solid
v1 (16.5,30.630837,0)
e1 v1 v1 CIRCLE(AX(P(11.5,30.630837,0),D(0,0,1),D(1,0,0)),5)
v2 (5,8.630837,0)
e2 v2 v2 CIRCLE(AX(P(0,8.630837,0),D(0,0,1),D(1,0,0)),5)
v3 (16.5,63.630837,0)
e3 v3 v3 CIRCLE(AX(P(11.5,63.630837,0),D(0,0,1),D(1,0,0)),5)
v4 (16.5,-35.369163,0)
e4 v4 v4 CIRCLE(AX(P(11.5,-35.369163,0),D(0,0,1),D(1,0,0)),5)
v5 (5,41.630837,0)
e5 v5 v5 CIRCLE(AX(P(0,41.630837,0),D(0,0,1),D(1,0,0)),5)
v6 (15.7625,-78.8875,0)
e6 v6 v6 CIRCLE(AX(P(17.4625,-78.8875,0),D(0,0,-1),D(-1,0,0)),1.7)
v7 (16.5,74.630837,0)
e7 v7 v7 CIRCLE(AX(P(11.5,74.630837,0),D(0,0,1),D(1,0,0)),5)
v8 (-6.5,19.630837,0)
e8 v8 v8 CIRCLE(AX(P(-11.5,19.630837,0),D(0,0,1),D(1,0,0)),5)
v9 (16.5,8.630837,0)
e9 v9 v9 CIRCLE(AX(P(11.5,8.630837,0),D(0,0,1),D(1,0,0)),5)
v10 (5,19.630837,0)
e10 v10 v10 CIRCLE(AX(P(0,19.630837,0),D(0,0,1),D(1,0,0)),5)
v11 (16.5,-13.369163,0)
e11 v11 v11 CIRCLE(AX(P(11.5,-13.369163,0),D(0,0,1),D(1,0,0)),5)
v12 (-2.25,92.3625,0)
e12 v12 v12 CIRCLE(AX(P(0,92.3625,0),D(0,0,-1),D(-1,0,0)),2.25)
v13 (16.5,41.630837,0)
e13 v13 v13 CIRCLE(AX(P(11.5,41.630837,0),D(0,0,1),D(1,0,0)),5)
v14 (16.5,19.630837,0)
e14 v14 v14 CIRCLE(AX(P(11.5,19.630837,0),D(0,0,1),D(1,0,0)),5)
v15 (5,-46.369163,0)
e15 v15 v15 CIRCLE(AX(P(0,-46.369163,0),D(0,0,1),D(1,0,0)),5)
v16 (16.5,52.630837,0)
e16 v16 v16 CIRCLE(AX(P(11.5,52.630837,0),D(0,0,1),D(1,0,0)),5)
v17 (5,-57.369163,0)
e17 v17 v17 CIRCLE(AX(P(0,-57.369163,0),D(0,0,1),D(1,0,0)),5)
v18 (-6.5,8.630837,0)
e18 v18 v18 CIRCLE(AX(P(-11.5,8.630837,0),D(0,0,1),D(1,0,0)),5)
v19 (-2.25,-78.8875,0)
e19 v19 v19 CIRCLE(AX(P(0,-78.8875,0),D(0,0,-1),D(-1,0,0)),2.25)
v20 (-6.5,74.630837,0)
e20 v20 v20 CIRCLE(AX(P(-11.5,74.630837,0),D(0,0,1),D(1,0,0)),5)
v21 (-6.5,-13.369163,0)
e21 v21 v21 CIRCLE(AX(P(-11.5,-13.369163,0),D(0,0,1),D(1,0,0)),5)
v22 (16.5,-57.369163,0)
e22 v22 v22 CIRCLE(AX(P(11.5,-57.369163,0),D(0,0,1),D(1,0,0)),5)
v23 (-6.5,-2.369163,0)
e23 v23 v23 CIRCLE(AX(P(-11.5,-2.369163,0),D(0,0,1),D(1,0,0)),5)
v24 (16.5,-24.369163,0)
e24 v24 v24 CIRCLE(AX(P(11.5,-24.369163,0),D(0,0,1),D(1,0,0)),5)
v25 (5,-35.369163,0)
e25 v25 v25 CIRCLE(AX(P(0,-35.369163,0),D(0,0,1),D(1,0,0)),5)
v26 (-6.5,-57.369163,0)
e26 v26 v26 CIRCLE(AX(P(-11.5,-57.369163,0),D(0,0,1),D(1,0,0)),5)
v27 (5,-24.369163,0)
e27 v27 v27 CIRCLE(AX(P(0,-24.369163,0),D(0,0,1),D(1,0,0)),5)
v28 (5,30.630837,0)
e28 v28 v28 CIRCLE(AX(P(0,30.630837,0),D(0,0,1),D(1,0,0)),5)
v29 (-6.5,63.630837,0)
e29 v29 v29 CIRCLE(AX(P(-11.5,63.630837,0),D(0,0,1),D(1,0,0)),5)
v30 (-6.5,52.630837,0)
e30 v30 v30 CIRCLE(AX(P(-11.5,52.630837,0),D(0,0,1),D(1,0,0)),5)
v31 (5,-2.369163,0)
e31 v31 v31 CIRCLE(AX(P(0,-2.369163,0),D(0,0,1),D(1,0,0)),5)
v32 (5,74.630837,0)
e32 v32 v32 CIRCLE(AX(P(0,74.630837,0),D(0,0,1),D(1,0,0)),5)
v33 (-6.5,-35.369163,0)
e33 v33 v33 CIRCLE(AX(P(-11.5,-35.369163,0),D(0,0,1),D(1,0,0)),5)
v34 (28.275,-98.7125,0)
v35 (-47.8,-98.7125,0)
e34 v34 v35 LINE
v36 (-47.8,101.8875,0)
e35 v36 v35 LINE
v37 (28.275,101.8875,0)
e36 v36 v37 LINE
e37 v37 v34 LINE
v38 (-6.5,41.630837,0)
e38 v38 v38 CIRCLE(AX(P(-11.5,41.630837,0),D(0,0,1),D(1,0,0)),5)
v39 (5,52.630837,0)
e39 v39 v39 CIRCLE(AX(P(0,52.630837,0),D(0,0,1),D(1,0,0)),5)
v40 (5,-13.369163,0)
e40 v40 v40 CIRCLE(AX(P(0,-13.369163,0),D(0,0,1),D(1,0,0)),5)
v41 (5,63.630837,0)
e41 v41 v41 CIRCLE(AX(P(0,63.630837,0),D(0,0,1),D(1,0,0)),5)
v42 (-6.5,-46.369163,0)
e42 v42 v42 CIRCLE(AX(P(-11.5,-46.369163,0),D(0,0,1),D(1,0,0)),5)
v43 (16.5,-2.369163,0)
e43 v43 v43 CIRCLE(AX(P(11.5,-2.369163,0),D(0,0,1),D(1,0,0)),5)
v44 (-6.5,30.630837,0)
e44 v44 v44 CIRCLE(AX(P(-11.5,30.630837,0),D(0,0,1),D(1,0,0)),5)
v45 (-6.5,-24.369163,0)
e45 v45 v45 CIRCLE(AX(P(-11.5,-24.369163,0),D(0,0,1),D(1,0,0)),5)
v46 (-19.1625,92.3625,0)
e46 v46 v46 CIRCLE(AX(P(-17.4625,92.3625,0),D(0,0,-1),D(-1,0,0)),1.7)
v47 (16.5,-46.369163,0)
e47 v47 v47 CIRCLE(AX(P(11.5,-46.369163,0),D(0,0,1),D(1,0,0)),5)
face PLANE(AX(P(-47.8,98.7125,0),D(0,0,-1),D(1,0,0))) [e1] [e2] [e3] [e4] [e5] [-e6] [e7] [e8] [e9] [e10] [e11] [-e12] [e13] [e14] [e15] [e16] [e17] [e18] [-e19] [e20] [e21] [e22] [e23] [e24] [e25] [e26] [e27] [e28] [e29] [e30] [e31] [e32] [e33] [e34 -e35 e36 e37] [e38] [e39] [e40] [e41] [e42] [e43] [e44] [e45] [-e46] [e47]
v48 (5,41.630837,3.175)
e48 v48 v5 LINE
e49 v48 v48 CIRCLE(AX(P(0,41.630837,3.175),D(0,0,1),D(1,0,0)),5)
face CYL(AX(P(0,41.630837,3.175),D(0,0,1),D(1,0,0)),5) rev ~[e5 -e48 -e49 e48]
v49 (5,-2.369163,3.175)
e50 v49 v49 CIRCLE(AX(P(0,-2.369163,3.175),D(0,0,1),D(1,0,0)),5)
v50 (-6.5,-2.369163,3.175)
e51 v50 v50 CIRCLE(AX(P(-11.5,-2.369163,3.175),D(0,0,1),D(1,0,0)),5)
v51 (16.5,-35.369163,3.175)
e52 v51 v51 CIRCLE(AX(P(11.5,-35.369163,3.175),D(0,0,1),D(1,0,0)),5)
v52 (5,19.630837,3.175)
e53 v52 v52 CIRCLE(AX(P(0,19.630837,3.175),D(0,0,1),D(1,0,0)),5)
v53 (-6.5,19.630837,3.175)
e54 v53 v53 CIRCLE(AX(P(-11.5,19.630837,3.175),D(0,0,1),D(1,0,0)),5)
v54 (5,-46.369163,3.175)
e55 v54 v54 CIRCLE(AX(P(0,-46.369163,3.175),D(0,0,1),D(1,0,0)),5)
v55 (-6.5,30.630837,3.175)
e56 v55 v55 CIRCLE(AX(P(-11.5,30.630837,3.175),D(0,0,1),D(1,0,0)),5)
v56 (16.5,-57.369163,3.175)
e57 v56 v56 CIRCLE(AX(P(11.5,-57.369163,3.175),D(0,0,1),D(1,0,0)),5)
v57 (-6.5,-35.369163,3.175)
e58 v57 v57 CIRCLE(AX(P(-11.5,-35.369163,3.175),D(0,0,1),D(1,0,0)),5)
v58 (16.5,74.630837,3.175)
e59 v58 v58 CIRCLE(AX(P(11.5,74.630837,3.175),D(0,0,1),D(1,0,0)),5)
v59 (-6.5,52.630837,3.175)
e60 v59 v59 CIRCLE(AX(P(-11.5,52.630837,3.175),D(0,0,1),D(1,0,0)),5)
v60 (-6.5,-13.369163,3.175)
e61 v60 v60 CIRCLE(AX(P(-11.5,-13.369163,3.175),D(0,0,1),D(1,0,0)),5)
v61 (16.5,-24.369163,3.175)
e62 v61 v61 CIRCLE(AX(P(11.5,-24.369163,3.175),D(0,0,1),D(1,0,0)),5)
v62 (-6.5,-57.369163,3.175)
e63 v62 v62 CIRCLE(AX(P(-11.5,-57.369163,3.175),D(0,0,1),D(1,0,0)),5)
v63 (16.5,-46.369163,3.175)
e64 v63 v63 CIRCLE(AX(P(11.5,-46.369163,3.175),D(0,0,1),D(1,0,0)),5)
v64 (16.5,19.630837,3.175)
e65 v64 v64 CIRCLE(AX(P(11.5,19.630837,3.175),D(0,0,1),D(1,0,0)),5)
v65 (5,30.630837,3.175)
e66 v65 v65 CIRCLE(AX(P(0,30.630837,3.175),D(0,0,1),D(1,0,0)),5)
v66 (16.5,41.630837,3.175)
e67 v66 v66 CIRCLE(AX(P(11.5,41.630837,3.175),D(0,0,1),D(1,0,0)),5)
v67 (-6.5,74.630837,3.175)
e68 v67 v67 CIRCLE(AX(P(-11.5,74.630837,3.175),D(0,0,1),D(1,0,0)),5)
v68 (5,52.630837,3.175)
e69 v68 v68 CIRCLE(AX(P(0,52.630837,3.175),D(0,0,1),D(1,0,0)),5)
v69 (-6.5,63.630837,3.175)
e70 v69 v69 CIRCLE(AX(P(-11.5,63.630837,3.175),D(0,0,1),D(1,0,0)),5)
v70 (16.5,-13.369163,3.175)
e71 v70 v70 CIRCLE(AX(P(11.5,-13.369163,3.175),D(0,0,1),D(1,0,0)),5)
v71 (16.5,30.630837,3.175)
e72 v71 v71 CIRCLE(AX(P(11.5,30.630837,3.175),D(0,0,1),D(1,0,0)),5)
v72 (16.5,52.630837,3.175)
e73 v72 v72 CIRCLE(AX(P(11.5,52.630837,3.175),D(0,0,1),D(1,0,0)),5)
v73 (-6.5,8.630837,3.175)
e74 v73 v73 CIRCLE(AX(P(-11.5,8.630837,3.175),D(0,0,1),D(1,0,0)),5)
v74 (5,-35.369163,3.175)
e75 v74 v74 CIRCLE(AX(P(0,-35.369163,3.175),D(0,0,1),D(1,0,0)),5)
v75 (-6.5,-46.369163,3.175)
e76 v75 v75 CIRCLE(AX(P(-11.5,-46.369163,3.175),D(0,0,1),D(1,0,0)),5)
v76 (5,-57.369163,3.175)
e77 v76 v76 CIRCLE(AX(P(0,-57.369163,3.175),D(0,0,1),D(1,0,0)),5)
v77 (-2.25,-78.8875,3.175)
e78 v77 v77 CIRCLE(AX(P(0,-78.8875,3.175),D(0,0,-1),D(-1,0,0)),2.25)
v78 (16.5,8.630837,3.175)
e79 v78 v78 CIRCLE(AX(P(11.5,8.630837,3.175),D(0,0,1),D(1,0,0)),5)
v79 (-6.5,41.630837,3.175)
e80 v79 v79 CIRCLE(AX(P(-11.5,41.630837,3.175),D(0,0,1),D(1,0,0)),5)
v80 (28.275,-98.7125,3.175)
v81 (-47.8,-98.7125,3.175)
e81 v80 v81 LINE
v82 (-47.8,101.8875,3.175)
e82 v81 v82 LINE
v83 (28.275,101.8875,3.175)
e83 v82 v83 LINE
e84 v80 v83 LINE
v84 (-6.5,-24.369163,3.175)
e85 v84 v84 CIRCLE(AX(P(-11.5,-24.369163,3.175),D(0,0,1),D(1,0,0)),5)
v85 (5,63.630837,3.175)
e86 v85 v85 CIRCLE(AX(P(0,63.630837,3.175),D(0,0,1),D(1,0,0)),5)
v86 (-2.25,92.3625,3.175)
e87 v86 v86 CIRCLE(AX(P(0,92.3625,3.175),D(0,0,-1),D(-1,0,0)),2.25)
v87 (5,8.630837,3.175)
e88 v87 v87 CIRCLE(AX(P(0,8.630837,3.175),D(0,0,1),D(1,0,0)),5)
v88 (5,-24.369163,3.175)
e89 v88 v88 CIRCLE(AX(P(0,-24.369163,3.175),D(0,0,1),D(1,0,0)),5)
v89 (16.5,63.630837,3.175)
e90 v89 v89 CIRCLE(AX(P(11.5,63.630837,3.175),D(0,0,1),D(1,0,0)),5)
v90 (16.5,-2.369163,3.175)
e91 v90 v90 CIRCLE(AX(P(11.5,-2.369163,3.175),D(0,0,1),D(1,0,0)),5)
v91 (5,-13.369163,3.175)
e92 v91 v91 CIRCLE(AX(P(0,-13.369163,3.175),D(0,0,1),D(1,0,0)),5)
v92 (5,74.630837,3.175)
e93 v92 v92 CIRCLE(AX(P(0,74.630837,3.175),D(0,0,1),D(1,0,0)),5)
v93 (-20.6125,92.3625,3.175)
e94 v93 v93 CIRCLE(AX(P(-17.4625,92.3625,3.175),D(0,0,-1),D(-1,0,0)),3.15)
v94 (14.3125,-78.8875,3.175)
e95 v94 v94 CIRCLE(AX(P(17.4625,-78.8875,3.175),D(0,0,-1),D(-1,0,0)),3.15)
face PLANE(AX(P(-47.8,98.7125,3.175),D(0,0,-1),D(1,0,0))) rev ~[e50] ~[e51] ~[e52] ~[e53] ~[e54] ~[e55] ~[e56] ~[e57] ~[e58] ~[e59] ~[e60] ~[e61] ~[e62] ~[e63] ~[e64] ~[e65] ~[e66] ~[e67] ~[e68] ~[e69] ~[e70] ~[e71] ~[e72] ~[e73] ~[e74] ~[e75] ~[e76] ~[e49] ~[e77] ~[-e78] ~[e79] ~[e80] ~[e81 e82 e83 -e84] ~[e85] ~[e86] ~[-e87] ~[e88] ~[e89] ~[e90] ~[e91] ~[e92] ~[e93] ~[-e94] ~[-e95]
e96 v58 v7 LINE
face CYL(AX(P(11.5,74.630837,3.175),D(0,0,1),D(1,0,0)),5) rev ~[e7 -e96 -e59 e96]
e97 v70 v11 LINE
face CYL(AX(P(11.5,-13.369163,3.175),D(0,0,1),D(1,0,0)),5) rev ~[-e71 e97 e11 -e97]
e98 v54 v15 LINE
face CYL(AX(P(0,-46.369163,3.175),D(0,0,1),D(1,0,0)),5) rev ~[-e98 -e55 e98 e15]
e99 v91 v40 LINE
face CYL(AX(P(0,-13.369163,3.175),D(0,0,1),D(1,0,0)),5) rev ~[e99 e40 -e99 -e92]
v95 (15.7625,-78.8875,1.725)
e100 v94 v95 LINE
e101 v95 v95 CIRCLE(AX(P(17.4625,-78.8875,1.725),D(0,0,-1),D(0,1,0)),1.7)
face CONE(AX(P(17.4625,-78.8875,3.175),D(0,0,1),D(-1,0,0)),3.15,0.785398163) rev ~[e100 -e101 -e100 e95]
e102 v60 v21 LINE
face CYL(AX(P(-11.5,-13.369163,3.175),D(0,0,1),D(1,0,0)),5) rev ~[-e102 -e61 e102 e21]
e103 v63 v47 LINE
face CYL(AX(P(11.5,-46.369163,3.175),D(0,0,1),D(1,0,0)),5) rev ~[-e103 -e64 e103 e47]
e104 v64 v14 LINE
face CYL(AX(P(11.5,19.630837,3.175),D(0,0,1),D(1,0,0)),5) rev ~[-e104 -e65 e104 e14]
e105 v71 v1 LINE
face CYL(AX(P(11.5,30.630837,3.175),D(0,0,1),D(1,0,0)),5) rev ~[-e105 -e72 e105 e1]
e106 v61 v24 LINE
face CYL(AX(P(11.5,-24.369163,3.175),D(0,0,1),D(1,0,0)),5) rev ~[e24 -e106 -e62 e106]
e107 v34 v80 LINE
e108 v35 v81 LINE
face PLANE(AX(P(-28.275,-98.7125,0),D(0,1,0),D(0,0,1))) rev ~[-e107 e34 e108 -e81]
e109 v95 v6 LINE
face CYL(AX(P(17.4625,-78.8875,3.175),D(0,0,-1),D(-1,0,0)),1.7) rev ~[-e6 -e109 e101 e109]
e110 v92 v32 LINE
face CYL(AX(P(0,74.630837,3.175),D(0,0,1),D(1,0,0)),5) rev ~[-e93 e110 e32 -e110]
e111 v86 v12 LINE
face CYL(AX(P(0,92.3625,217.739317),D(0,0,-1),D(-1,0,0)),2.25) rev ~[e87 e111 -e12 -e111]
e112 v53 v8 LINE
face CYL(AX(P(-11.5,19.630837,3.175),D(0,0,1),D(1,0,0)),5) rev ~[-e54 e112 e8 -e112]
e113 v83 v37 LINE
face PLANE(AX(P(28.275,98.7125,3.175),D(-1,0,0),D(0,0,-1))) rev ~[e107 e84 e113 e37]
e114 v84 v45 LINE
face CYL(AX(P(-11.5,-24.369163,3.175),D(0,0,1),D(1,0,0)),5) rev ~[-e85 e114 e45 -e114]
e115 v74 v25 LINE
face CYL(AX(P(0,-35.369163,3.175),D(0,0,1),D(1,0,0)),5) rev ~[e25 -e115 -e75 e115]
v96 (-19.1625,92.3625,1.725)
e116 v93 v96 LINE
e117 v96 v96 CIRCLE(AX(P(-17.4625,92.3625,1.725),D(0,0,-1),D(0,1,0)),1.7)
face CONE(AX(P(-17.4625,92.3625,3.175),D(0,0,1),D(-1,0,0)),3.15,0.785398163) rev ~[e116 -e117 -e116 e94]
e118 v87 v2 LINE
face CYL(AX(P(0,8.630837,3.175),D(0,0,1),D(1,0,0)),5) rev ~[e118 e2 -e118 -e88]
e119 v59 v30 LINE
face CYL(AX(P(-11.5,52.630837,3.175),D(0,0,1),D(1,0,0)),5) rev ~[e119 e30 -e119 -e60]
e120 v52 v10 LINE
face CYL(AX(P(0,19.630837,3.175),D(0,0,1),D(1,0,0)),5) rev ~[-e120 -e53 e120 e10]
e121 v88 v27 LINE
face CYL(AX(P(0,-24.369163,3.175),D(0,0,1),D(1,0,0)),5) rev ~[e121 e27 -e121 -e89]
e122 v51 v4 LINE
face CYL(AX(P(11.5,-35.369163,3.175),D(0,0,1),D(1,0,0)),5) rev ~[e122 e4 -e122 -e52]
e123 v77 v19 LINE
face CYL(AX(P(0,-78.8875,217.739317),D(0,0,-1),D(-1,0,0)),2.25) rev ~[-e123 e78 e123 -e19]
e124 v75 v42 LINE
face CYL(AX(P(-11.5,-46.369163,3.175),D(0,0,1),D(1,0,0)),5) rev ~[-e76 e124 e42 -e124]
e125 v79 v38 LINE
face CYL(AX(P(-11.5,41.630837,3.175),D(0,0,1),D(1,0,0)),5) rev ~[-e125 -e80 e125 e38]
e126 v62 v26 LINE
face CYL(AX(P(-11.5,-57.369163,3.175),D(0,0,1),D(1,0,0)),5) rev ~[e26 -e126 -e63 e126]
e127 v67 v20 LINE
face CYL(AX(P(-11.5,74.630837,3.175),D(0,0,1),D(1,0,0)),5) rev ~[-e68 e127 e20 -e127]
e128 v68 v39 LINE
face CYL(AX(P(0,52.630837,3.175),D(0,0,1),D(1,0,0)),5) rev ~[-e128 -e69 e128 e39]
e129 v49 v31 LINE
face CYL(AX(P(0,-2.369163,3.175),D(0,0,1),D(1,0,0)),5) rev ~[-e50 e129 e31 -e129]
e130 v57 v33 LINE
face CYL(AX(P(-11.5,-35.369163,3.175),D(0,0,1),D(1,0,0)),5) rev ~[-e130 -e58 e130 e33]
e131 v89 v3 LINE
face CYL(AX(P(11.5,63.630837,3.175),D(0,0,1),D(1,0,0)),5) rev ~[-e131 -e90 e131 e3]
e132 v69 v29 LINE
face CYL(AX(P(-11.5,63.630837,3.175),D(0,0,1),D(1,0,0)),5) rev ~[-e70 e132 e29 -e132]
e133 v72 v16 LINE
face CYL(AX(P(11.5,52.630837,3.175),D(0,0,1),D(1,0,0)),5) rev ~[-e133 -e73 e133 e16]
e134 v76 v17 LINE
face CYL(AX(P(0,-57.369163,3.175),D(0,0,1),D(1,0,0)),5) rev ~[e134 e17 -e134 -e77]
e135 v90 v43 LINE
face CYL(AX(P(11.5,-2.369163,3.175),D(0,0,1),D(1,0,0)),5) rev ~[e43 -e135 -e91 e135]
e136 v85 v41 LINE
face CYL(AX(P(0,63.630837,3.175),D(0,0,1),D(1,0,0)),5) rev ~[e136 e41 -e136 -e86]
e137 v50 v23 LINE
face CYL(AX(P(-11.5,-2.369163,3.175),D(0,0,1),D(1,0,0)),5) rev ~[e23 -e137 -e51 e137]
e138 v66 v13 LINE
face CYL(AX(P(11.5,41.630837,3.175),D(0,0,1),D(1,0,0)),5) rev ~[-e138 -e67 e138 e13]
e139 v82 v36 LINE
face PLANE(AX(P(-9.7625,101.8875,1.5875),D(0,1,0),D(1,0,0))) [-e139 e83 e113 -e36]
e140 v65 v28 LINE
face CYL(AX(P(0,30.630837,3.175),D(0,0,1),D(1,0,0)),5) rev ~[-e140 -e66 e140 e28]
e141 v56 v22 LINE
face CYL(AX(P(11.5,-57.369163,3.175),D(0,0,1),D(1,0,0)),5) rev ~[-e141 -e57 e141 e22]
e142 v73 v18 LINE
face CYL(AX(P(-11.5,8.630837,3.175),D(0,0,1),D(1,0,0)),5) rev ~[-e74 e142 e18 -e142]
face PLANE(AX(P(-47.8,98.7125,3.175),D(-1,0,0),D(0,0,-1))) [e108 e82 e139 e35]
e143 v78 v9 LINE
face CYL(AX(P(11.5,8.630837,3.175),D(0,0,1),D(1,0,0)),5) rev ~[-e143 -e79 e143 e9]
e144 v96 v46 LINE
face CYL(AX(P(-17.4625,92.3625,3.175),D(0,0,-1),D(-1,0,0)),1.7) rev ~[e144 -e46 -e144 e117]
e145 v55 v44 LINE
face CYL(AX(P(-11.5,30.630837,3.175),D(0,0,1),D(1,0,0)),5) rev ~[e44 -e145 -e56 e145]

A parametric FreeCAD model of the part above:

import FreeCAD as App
import Part
import Sketcher
Q = App.Units.Quantity


def add_polygon(sketch, points):
    """Adds a closed chain of lines whose ends are joined by coincident constraints."""
    first, n = sketch.GeometryCount, len(points)
    for a, b in zip(points, points[1:] + points[:1]):
        sketch.addGeometry(Part.LineSegment(App.Vector(*a, 0), App.Vector(*b, 0)), False)
    for i in range(n):
        sketch.addConstraint(Sketcher.Constraint("Coincident", first + i, 2, first + (i + 1) % n, 1))

doc = App.newDocument("Part")
body = doc.addObject("PartDesign::Body", "Body")

# Sketch on XY plane
sketch1 = body.newObject("Sketcher::SketchObject", "Sketch")
sketch1.AttachmentSupport = (doc.getObject("XY_Plane"), [""])
sketch1.MapMode = "FlatFace"
add_polygon(sketch1, [(-28, 99), (-28, -99), (28, -99), (28, 99)])  # lines 0-3
sketch1.addConstraint([
    Sketcher.Constraint("Vertical", 0),
    Sketcher.Constraint("Horizontal", 1),
    Sketcher.Constraint("Vertical", 2),
    Sketcher.Constraint("Horizontal", 3),
    Sketcher.Constraint("Symmetric", 0, 2, 2, 2, -1, 1),
    Sketcher.Constraint("DistanceX", 1, 1, 1, 2, Q("56.55 mm")),
    Sketcher.Constraint("DistanceY", 0, 2, 0, 1, Q("197.425 mm")),
])
pad1 = body.newObject("PartDesign::Pad", "Pad")
pad1.Profile = sketch1
pad1.Length = 3.175

# Sketch on XY plane
sketch2 = body.newObject("Sketcher::SketchObject", "Sketch001")
sketch2.AttachmentSupport = (doc.getObject("XY_Plane"), [""])
sketch2.MapMode = "FlatFace"
sketch2.AttachmentOffset = App.Placement(App.Vector(0, 0, 3.175), App.Rotation())
sketch2.addGeometry([
    Part.Circle(App.Vector(0, -57, 0), App.Vector(0, 0, 1), 5),
    Part.Circle(App.Vector(12, -57, 0), App.Vector(0, 0, 1), 5),
    Part.Circle(App.Vector(-12, -57, 0), App.Vector(0, 0, 1), 5),
], False)
sketch2.addConstraint([
    Sketcher.Constraint("Equal", 0, 1),
    Sketcher.Constraint("Equal", 1, 2),
    Sketcher.Constraint("Symmetric", 1, 3, 2, 3, -2),
    Sketcher.Constraint("PointOnObject", 0, 3, -2),
    Sketcher.Constraint("Horizontal", 0, 3, 1, 3),
    Sketcher.Constraint("Diameter", 0, Q("10 mm")),
    Sketcher.Constraint("DistanceX", 2, 3, 1, 3, Q("23 mm")),
    Sketcher.Constraint("DistanceY", 0, 3, -1, 1, Q("57.369163 mm")),
])
pocket1 = body.newObject("PartDesign::Pocket", "Pocket")
pocket1.Profile = sketch2
pocket1.Type = "ThroughAll"
doc.recompute()

linearpattern = body.newObject("PartDesign::LinearPattern", "LinearPattern")
linearpattern.Originals = [pocket1]
linearpattern.Direction = (doc.getObject("Y_Axis"), [""])
linearpattern.Mode = "offset"
linearpattern.Offset = 11
linearpattern.Occurrences = 13
body.Tip = linearpattern

# Sketch on YZ plane
sketch3 = body.newObject("Sketcher::SketchObject", "Sketch002")
sketch3.AttachmentSupport = (doc.getObject("YZ_Plane"), [""])
sketch3.MapMode = "FlatFace"
sketch3.AttachmentOffset = App.Placement(App.Vector(0, 0, -28.275), App.Rotation())
add_polygon(sketch3, [(98.7, 0), (-98.7, 0), (-98.7, 3.2), (98.7, 3.2)])  # lines 0-3
sketch3.addConstraint([
    Sketcher.Constraint("Horizontal", 0),
    Sketcher.Constraint("Vertical", 1),
    Sketcher.Constraint("Horizontal", 2),
    Sketcher.Constraint("Vertical", 3),
    Sketcher.Constraint("Symmetric", 0, 2, 3, 2, -1, 1),
    Sketcher.Constraint("DistanceX", 0, 2, 0, 1, Q("197.425 mm")),
    Sketcher.Constraint("DistanceY", 1, 1, 1, 2, Q("3.175 mm")),
])
pad2 = body.newObject("PartDesign::Pad", "Pad001")
pad2.Profile = sketch3
pad2.Length = 19.525
pad2.Reversed = True

# Sketch on XZ plane
sketch4 = body.newObject("Sketcher::SketchObject", "Sketch003")
sketch4.AttachmentSupport = (doc.getObject("XZ_Plane"), [""])
sketch4.MapMode = "FlatFace"
sketch4.AttachmentOffset = App.Placement(App.Vector(0, 0, -98.7125), App.Rotation())
add_polygon(sketch4, [(-47.8, 0), (-47.8, 3.2), (28.3, 3.2), (28.3, 0)])  # lines 0-3
sketch4.addConstraint([
    Sketcher.Constraint("Vertical", 0),
    Sketcher.Constraint("Horizontal", 1),
    Sketcher.Constraint("Vertical", 2),
    Sketcher.Constraint("Horizontal", 3),
    Sketcher.Constraint("PointOnObject", 2, 2, -1),
    Sketcher.Constraint("DistanceX", 0, 2, -1, 1, Q("47.8 mm")),
    Sketcher.Constraint("DistanceX", 1, 1, 1, 2, Q("76.075 mm")),
    Sketcher.Constraint("DistanceY", 0, 1, 0, 2, Q("3.175 mm")),
])
pad3 = body.newObject("PartDesign::Pad", "Pad002")
pad3.Profile = sketch4
pad3.Length = 3.175
pad3.Reversed = True

# Sketch on XY plane
sketch5 = body.newObject("Sketcher::SketchObject", "Sketch004")
sketch5.AttachmentSupport = (doc.getObject("XY_Plane"), [""])
sketch5.MapMode = "FlatFace"
sketch5.AttachmentOffset = App.Placement(App.Vector(0, 0, 3.175), App.Rotation())
sketch5.addGeometry([
    Part.Circle(App.Vector(0, 92.4, 0), App.Vector(0, 0, 1), 2.2),
    Part.Circle(App.Vector(0, -78.9, 0), App.Vector(0, 0, 1), 2.2),
], False)
sketch5.addConstraint([
    Sketcher.Constraint("Equal", 0, 1),
    Sketcher.Constraint("PointOnObject", 0, 3, -2),
    Sketcher.Constraint("PointOnObject", 1, 3, -2),
    Sketcher.Constraint("Diameter", 0, Q("4.5 mm")),
    Sketcher.Constraint("DistanceY", 1, 3, 0, 3, Q("171.25 mm")),
    Sketcher.Constraint("DistanceY", -1, 1, 0, 3, Q("92.3625 mm")),
])
doc.recompute()
hole = body.newObject("PartDesign::Hole", "Hole")
hole.Profile = sketch5
hole.ThreadType = "None"
hole.Diameter = 4.5
hole.DepthType = "ThroughAll"

# Sketch on XY plane
sketch6 = body.newObject("Sketcher::SketchObject", "Sketch005")
sketch6.AttachmentSupport = (doc.getObject("XY_Plane"), [""])
sketch6.MapMode = "FlatFace"
sketch6.AttachmentOffset = App.Placement(App.Vector(0, 0, 3.175), App.Rotation())
sketch6.addGeometry([
    Part.Circle(App.Vector(17.5, -78.9, 0), App.Vector(0, 0, 1), 1.7),
    Part.Circle(App.Vector(-17.5, 92.4, 0), App.Vector(0, 0, 1), 1.7),
], False)
sketch6.addConstraint([
    Sketcher.Constraint("Equal", 0, 1),
    Sketcher.Constraint("Diameter", 0, Q("3.4 mm")),
    Sketcher.Constraint("DistanceY", 0, 3, 1, 3, Q("171.25 mm")),
    Sketcher.Constraint("DistanceX", 1, 3, 0, 3, Q("34.925 mm")),
    Sketcher.Constraint("DistanceX", -1, 1, 0, 3, Q("17.4625 mm")),
    Sketcher.Constraint("DistanceY", 0, 3, -1, 1, Q("78.8875 mm")),
])
doc.recompute()
hole2 = body.newObject("PartDesign::Hole", "Hole001")
hole2.Profile = sketch6
hole2.ThreadType = "None"
hole2.Diameter = 3.4
hole2.DepthType = "ThroughAll"
hole2.HoleCutType = "Countersink"
hole2.HoleCutDiameter = 6.3
hole2.HoleCutCountersinkAngle = 90

doc.recompute()
